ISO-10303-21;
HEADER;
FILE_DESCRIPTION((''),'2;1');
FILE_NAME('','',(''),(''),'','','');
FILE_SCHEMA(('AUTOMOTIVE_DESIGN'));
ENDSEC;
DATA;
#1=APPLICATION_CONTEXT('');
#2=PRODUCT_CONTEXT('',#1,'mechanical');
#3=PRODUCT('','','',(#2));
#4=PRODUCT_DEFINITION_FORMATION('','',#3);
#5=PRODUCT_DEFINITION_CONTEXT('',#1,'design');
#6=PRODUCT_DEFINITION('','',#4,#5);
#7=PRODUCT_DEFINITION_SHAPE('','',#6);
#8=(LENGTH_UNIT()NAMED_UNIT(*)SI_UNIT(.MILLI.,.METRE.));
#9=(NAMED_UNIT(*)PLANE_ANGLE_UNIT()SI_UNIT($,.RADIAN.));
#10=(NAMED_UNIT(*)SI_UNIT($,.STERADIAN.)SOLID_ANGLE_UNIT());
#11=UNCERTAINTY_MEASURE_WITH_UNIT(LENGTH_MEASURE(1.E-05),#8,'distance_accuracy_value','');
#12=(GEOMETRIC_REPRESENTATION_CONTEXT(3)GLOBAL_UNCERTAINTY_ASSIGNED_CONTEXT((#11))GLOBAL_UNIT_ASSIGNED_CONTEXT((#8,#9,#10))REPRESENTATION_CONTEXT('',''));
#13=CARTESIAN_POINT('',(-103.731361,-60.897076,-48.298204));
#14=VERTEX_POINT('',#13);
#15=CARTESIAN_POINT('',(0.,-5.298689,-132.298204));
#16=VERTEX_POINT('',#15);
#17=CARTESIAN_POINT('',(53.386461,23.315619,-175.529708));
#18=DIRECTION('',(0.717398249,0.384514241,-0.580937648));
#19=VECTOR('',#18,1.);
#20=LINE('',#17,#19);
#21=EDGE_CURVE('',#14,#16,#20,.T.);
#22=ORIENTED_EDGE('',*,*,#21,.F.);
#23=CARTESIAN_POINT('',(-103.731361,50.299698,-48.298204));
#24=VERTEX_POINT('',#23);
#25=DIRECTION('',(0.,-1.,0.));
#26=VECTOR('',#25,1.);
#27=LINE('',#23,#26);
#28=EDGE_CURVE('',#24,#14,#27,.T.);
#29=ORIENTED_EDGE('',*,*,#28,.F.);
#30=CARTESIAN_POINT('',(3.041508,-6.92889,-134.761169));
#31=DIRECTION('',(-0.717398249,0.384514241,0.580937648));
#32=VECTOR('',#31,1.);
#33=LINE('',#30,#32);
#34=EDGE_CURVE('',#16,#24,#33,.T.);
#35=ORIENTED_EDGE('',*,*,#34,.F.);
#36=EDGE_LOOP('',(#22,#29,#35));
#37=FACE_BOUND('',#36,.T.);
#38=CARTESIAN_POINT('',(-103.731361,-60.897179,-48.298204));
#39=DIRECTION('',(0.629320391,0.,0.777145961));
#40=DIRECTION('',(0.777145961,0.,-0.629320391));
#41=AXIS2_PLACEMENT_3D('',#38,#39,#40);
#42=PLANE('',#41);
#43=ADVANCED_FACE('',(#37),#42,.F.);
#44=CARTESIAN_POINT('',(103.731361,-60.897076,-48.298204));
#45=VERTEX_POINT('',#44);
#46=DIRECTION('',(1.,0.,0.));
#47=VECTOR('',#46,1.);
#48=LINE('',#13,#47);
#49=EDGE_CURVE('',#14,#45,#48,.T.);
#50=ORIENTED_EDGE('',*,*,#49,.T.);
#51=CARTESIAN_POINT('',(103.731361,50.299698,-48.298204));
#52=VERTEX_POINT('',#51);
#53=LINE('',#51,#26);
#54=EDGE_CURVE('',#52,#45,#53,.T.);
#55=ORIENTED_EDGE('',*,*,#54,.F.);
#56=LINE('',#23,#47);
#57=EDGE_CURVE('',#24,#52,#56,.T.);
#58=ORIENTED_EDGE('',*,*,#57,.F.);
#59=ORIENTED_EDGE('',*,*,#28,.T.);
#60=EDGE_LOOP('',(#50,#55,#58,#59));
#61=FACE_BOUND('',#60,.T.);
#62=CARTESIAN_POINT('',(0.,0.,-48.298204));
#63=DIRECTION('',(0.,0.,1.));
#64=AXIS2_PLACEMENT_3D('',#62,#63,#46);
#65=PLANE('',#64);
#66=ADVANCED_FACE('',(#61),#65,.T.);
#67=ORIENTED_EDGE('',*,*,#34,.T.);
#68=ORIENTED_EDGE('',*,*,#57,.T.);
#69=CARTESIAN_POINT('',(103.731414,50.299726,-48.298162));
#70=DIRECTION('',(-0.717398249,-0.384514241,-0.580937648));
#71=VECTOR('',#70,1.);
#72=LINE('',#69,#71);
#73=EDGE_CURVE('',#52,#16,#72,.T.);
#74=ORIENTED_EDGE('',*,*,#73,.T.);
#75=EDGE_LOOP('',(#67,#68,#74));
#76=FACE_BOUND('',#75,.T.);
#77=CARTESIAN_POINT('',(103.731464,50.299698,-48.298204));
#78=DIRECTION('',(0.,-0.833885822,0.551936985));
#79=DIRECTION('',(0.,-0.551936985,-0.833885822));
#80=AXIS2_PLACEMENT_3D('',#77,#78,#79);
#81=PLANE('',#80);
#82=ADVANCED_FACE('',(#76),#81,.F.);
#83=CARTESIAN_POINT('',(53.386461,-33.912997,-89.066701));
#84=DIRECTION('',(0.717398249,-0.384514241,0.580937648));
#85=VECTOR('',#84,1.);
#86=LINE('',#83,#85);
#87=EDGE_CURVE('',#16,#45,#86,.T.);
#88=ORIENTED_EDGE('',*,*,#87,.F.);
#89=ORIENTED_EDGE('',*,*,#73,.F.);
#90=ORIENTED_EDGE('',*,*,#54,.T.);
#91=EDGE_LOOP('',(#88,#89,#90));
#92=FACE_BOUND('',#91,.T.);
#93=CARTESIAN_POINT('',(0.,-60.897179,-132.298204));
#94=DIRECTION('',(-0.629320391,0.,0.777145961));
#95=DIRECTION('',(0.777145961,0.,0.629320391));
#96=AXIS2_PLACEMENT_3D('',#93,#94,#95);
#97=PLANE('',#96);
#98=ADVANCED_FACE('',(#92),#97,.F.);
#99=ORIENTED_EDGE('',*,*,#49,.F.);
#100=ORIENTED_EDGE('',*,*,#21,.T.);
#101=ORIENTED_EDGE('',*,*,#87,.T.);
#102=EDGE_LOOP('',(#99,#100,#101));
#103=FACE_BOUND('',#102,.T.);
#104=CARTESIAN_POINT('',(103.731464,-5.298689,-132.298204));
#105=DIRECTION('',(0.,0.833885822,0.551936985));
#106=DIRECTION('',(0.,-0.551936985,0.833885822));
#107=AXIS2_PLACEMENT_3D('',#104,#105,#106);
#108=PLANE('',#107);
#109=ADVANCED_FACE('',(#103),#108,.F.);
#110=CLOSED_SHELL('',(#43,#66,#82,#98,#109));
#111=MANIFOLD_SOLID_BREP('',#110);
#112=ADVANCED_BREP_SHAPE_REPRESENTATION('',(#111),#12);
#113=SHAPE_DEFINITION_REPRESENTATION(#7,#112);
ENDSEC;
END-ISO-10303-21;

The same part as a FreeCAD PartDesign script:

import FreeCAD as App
import Part
import Sketcher
Q = App.Units.Quantity


def add_polygon(sketch, points):
    """Adds a closed chain of lines whose ends are joined by coincident constraints."""
    first, n = sketch.GeometryCount, len(points)
    for a, b in zip(points, points[1:] + points[:1]):
        sketch.addGeometry(Part.LineSegment(App.Vector(*a, 0), App.Vector(*b, 0)), False)
    for i in range(n):
        sketch.addConstraint(Sketcher.Constraint("Coincident", first + i, 2, first + (i + 1) % n, 1))

doc = App.newDocument("Part")
body = doc.addObject("PartDesign::Body", "Body")

sketch1 = body.newObject("Sketcher::SketchObject", "Sketch")
sketch1.AttachmentSupport = (doc.getObject("XY_Plane"), [""])
sketch1.MapMode = "FlatFace"
sketch1.AttachmentOffset = App.Placement(App.Vector(0, 0, -48.298204), App.Rotation())
add_polygon(sketch1, [(104, 50), (-104, 50), (-104, -61), (104, -61)])
sketch1.addConstraint([
    Sketcher.Constraint("Horizontal", 0),
    Sketcher.Constraint("Vertical", 1),
    Sketcher.Constraint("Horizontal", 2),
    Sketcher.Constraint("Vertical", 3),
    Sketcher.Constraint("DistanceY", -1, 1, 0, 2, 50.299698),
    Sketcher.Constraint("DistanceX", 0, 2, 0, 1, 207.462722),
    Sketcher.Constraint("DistanceY", 1, 2, 1, 1, 111.196774),
    Sketcher.Constraint("DistanceX", 0, 2, -1, 1, 103.731361),
])
pad1 = body.newObject("PartDesign::Pad", "Pad")
pad1.Profile = sketch1
pad1.Length = 90.101349
pad1.Reversed = True

sketch2 = body.newObject("Sketcher::SketchObject", "Sketch001")
sketch2.AttachmentSupport = (doc.getObject("YZ_Plane"), [""])
sketch2.MapMode = "FlatFace"
sketch2.AttachmentOffset = App.Placement(App.Vector(0, 0, -103.731361), App.Rotation())
add_polygon(sketch2, [(-5, -132), (50, -48), (50, -138), (-61, -138), (-61, -48)])
sketch2.addConstraint([
    Sketcher.Constraint("Vertical", 1),
    Sketcher.Constraint("Horizontal", 2),
    Sketcher.Constraint("Vertical", 3),
    Sketcher.Constraint("Horizontal", 0, 2, 3, 2),
    Sketcher.Constraint("Equal", 0, 4),
    Sketcher.Constraint("Angle", 0, Q("56.5 deg")),
    Sketcher.Constraint("DistanceY", 4, 2, 0, 2, 84.0),
    Sketcher.Constraint("DistanceY", 1, 2, 1, 1, 90.101349),
    Sketcher.Constraint("DistanceX", -1, 1, 0, 2, 50.299698),
    Sketcher.Constraint("DistanceY", 0, 2, -1, 1, 48.298204),
])
pocket1 = body.newObject("PartDesign::Pocket", "Pocket")
pocket1.Profile = sketch2
pocket1.Type = "ThroughAll"
pocket1.Reversed = True

sketch3 = body.newObject("Sketcher::SketchObject", "Sketch002")
sketch3.AttachmentSupport = (doc.getObject("XZ_Plane"), [""])
sketch3.MapMode = "FlatFace"
sketch3.AttachmentOffset = App.Placement(App.Vector(0, 0, -50.299698), App.Rotation())
add_polygon(sketch3, [(-104, -48), (0, -132), (104, -48), (104, -138), (-104, -138)])
sketch3.addConstraint([
    Sketcher.Constraint("Vertical", 2),
    Sketcher.Constraint("Horizontal", 3),
    Sketcher.Constraint("Vertical", 4),
    Sketcher.Constraint("Symmetric", 1, 2, 4, 2, -2),
    Sketcher.Constraint("PointOnObject", 0, 2, -2),
    Sketcher.Constraint("Angle", 0, Q("-39 deg")),
    Sketcher.Constraint("DistanceY", 0, 2, 1, 2, 84.0),
    Sketcher.Constraint("DistanceY", 2, 2, 2, 1, 90.101349),
    Sketcher.Constraint("DistanceY", 0, 2, -1, 1, 132.298204),
])
pocket2 = body.newObject("PartDesign::Pocket", "Pocket001")
pocket2.Profile = sketch3
pocket2.Type = "ThroughAll"
pocket2.Reversed = True

doc.recompute()
